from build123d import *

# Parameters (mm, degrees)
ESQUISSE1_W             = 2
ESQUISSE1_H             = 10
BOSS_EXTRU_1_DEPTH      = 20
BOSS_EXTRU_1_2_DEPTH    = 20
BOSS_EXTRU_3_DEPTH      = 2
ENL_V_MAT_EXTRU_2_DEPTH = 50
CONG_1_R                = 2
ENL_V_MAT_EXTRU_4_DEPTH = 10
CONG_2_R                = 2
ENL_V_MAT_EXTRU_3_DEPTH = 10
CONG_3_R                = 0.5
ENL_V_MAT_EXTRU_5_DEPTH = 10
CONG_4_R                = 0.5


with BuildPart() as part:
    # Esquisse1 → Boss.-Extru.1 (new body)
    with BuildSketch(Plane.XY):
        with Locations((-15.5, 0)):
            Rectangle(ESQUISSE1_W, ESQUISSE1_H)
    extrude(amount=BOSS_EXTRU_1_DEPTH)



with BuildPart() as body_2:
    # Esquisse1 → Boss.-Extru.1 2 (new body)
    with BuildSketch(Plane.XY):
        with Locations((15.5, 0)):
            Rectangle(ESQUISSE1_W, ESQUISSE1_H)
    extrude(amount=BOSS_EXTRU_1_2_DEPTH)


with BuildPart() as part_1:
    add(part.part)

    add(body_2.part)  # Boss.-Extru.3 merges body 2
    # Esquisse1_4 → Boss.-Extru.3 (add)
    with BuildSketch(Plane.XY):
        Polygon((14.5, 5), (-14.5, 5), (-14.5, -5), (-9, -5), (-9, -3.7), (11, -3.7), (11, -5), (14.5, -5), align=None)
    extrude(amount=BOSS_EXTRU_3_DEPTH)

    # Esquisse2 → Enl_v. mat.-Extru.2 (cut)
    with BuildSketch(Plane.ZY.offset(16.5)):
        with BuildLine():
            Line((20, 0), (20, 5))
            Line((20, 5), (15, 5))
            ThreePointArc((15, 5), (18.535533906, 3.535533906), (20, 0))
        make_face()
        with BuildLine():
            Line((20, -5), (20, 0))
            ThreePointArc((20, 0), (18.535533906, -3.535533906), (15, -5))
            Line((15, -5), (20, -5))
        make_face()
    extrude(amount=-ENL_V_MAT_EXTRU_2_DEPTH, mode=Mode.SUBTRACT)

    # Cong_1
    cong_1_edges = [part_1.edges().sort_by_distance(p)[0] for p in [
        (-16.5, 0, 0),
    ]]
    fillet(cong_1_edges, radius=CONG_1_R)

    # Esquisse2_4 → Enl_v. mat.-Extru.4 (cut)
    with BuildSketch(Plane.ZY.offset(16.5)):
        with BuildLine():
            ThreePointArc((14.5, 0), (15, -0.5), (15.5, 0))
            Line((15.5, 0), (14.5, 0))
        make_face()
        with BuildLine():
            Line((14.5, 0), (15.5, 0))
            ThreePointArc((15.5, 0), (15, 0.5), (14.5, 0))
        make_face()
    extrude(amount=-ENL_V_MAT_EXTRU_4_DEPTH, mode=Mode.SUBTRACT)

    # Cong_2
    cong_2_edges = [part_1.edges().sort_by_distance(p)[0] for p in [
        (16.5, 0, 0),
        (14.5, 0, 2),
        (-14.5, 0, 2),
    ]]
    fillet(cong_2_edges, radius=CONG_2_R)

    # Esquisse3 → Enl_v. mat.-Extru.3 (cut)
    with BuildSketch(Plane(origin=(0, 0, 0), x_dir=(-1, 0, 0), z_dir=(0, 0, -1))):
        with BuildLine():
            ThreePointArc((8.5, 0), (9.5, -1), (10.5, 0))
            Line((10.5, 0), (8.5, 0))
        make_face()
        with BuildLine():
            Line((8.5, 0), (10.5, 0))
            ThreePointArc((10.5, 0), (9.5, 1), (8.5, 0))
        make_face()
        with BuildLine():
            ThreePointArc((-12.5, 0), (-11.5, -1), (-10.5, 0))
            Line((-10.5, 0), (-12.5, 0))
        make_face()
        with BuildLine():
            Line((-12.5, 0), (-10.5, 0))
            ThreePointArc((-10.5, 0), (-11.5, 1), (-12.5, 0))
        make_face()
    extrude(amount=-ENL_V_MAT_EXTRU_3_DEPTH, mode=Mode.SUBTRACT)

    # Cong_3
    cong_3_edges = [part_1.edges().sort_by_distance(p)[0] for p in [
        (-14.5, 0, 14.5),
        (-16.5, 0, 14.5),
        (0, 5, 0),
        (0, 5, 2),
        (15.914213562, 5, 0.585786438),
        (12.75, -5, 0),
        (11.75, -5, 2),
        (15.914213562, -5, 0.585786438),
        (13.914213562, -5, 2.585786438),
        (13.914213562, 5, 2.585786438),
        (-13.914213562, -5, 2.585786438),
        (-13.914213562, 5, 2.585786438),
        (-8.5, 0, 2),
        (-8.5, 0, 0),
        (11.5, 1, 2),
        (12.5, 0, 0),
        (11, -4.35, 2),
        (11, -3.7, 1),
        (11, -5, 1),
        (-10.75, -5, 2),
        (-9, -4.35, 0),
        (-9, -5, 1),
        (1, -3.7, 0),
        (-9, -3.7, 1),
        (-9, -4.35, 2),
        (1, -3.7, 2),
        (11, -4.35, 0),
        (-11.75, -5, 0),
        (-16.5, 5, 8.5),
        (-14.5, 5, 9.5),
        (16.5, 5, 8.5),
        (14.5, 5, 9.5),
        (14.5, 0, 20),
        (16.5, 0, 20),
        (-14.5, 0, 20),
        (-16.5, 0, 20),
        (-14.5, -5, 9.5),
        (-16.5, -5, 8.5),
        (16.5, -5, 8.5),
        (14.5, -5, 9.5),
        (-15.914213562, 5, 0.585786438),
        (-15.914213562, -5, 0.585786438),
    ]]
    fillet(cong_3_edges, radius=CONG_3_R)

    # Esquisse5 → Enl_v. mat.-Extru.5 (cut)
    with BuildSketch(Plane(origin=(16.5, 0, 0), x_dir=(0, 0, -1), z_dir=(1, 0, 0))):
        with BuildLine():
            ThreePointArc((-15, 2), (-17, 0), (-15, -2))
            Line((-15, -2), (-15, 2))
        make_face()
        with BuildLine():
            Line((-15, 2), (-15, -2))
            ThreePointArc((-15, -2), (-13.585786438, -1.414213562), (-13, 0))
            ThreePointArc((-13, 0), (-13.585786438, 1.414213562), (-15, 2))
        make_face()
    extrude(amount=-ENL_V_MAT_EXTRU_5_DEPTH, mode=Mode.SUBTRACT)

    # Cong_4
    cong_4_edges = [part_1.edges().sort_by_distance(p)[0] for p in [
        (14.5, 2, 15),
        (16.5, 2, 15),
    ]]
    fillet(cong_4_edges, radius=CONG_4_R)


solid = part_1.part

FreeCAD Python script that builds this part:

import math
import FreeCAD as App
import Part
import Sketcher
from FreeCAD import Vector
Q = App.Units.Quantity


def edges_at(feature, points):
    """Names of the edges that pass closest to the given points."""
    edges = feature.Shape.Edges
    near = lambda p: min(range(len(edges)), key=lambda i: edges[i].distToShape(Part.Vertex(*p))[0])
    return sorted({f"Edge{near(p) + 1}" for p in points})


def add_polygon(sketch, points):
    """Adds a closed chain of lines whose ends are joined by coincident constraints."""
    first, n = sketch.GeometryCount, len(points)
    for a, b in zip(points, points[1:] + points[:1]):
        sketch.addGeometry(Part.LineSegment(App.Vector(*a, 0), App.Vector(*b, 0)), False)
    for i in range(n):
        sketch.addConstraint(Sketcher.Constraint("Coincident", first + i, 2, first + (i + 1) % n, 1))

doc = App.newDocument("Part")
body = doc.addObject("PartDesign::Body", "Body")

sketch1 = doc.addObject("Sketcher::SketchObject", "Sketch")
body.addObject(sketch1)
sketch1.AttachmentSupport = (doc.XY_Plane, [""])
sketch1.MapMode = "FlatFace"
add_polygon(sketch1, [(-16.5, 5), (-16.5, -5), (-14.5, -5), (-14.5, 5)])
sketch1.addConstraint(Sketcher.Constraint("Vertical", 0))
sketch1.addConstraint(Sketcher.Constraint("Horizontal", 1))
sketch1.addConstraint(Sketcher.Constraint("Vertical", 2))
sketch1.addConstraint(Sketcher.Constraint("Horizontal", 3))
sketch1.addConstraint(Sketcher.Constraint("DistanceX", 1, 1, 1, 2, Q("2 mm")))
sketch1.addConstraint(Sketcher.Constraint("DistanceY", 0, 2, 0, 1, Q("10 mm")))
sketch1.addConstraint(Sketcher.Constraint("DistanceY", 0, 2, -1, 1, Q("5 mm")))
sketch1.addConstraint(Sketcher.Constraint("DistanceX", 0, 2, -1, 1, Q("16.5 mm")))
pad1 = doc.addObject("PartDesign::Pad", "Pad")
body.addObject(pad1)
pad1.Profile = sketch1
pad1.Length = 20
body2 = doc.addObject("PartDesign::Body", "Body001")

sketch2 = doc.addObject("Sketcher::SketchObject", "Sketch001")
body2.addObject(sketch2)
sketch2.AttachmentSupport = (doc.getObject("XY_Plane001"), [""])
sketch2.MapMode = "FlatFace"
add_polygon(sketch2, [(14.5, 5), (14.5, -5), (16.5, -5), (16.5, 5)])
sketch2.addConstraint(Sketcher.Constraint("Vertical", 0))
sketch2.addConstraint(Sketcher.Constraint("Horizontal", 1))
sketch2.addConstraint(Sketcher.Constraint("Vertical", 2))
sketch2.addConstraint(Sketcher.Constraint("Horizontal", 3))
sketch2.addConstraint(Sketcher.Constraint("DistanceX", 1, 1, 1, 2, Q("2 mm")))
sketch2.addConstraint(Sketcher.Constraint("DistanceY", 0, 2, 0, 1, Q("10 mm")))
sketch2.addConstraint(Sketcher.Constraint("DistanceY", 0, 2, -1, 1, Q("5 mm")))
sketch2.addConstraint(Sketcher.Constraint("DistanceX", -1, 1, 0, 2, Q("14.5 mm")))
pad2 = doc.addObject("PartDesign::Pad", "Pad001")
body2.addObject(pad2)
pad2.Profile = sketch2
pad2.Length = 20
body.AllowCompound = True
doc.recompute()

boolean = doc.addObject("PartDesign::Boolean", "Boolean")
body.addObject(boolean)
boolean.Type = "Fuse"
boolean.addObjects([body2])

sketch3 = doc.addObject("Sketcher::SketchObject", "Sketch002")
body.addObject(sketch3)
sketch3.AttachmentSupport = (doc.XY_Plane, [""])
sketch3.MapMode = "FlatFace"
add_polygon(sketch3, [(14.5, 5), (-14.5, 5), (-14.5, -5), (-9, -5), (-9, -3.7), (11, -3.7), (11, -5), (14.5, -5)])
sketch3.addConstraint(Sketcher.Constraint("Horizontal", 0))
sketch3.addConstraint(Sketcher.Constraint("Vertical", 1))
sketch3.addConstraint(Sketcher.Constraint("Horizontal", 2))
sketch3.addConstraint(Sketcher.Constraint("Vertical", 3))
sketch3.addConstraint(Sketcher.Constraint("Horizontal", 4))
sketch3.addConstraint(Sketcher.Constraint("Vertical", 5))
sketch3.addConstraint(Sketcher.Constraint("Horizontal", 6))
sketch3.addConstraint(Sketcher.Constraint("Vertical", 7))
sketch3.addConstraint(Sketcher.Constraint("Symmetric", 0, 2, 6, 2, -1, 1))
sketch3.addConstraint(Sketcher.Constraint("Horizontal", 2, 2, 5, 2))
sketch3.addConstraint(Sketcher.Constraint("DistanceX", 0, 2, 0, 1, Q("29 mm")))
sketch3.addConstraint(Sketcher.Constraint("DistanceX", 4, 1, 4, 2, Q("20 mm")))
sketch3.addConstraint(Sketcher.Constraint("DistanceY", 1, 2, 1, 1, Q("10 mm")))
sketch3.addConstraint(Sketcher.Constraint("DistanceX", 2, 1, 2, 2, Q("5.5 mm")))
sketch3.addConstraint(Sketcher.Constraint("DistanceY", 3, 1, 3, 2, Q("1.3 mm")))
pad3 = doc.addObject("PartDesign::Pad", "Pad002")
body.addObject(pad3)
pad3.Profile = sketch3
pad3.Length = 2

sketch4 = doc.addObject("Sketcher::SketchObject", "Sketch003")
body.addObject(sketch4)
sketch4.AttachmentSupport = (doc.YZ_Plane, [""])
sketch4.MapMode = "FlatFace"
sketch4.AttachmentOffset = App.Placement(Vector(0, 0, -16.5), App.Rotation())
sketch4.addGeometry(Part.LineSegment(Vector(0, 20, 0), Vector(5, 20, 0)), False)
sketch4.addGeometry(Part.LineSegment(Vector(5, 20, 0), Vector(5, 15, 0)), False)
sketch4.addGeometry(Part.ArcOfCircle(Part.Circle(Vector(0, 15, 0), Vector(0, 0, 1), 5), math.radians(0), math.radians(90)), False)
sketch4.addGeometry(Part.LineSegment(Vector(-5, 20, 0), Vector(0, 20, 0)), False)
sketch4.addGeometry(Part.ArcOfCircle(Part.Circle(Vector(0, 15, 0), Vector(0, 0, 1), 5), math.radians(90), math.radians(180)), False)
sketch4.addGeometry(Part.LineSegment(Vector(-5, 15, 0), Vector(-5, 20, 0)), False)
sketch4.addConstraint(Sketcher.Constraint("Coincident", 0, 2, 1, 1))
sketch4.addConstraint(Sketcher.Constraint("Tangent", 1, 2, 2, 1))
sketch4.addConstraint(Sketcher.Constraint("Tangent", 2, 2, 0, 1))
sketch4.addConstraint(Sketcher.Constraint("Tangent", 3, 2, 4, 1))
sketch4.addConstraint(Sketcher.Constraint("Tangent", 4, 2, 5, 1))
sketch4.addConstraint(Sketcher.Constraint("Coincident", 5, 2, 3, 1))
sketch4.addConstraint(Sketcher.Constraint("Horizontal", 0))
sketch4.addConstraint(Sketcher.Constraint("Vertical", 1))
sketch4.addConstraint(Sketcher.Constraint("Horizontal", 3))
sketch4.addConstraint(Sketcher.Constraint("Vertical", 5))
sketch4.addConstraint(Sketcher.Constraint("Coincident", 4, 3, 2, 3))
sketch4.addConstraint(Sketcher.Constraint("Equal", 2, 4))
sketch4.addConstraint(Sketcher.Constraint("PointOnObject", 2, 3, -2))
sketch4.addConstraint(Sketcher.Constraint("Radius", 2, Q("5 mm")))
sketch4.addConstraint(Sketcher.Constraint("DistanceY", -1, 1, 2, 3, Q("15 mm")))
pocket1 = doc.addObject("PartDesign::Pocket", "Pocket")
body.addObject(pocket1)
pocket1.Profile = sketch4
pocket1.Length = 50
pocket1.Reversed = True
doc.recompute()

fillet = doc.addObject("PartDesign::Fillet", "Fillet")
body.addObject(fillet)
fillet.Base = (pocket1, edges_at(pocket1, [(-16.5, 0, 0)]))
fillet.Radius = 2

sketch5 = doc.addObject("Sketcher::SketchObject", "Sketch004")
body.addObject(sketch5)
sketch5.AttachmentSupport = (doc.YZ_Plane, [""])
sketch5.MapMode = "FlatFace"
sketch5.AttachmentOffset = App.Placement(Vector(0, 0, -16.5), App.Rotation())
sketch5.addGeometry(Part.Circle(Vector(0, 15, 0), Vector(0, 0, 1), 0.5), False)
sketch5.addConstraint(Sketcher.Constraint("PointOnObject", 0, 3, -2))
sketch5.addConstraint(Sketcher.Constraint("Diameter", 0, Q("1 mm")))
sketch5.addConstraint(Sketcher.Constraint("DistanceY", -1, 1, 0, 3, Q("15 mm")))
pocket2 = doc.addObject("PartDesign::Pocket", "Pocket001")
body.addObject(pocket2)
pocket2.Profile = sketch5
pocket2.Length = 10
pocket2.Reversed = True
doc.recompute()

fillet2 = doc.addObject("PartDesign::Fillet", "Fillet001")
body.addObject(fillet2)
fillet2.Base = (pocket2, edges_at(pocket2, [(16.5, 0, 0), (14.5, 0, 2), (-14.5, 0, 2)]))
fillet2.Radius = 2

sketch6 = doc.addObject("Sketcher::SketchObject", "Sketch005")
body.addObject(sketch6)
sketch6.AttachmentSupport = (doc.XY_Plane, [""])
sketch6.MapMode = "FlatFace"
sketch6.addGeometry(Part.Circle(Vector(-9.5, 0, 0), Vector(0, 0, 1), 1), False)
sketch6.addGeometry(Part.Circle(Vector(11.5, 0, 0), Vector(0, 0, 1), 1), False)
sketch6.addConstraint(Sketcher.Constraint("Equal", 0, 1))
sketch6.addConstraint(Sketcher.Constraint("PointOnObject", 0, 3, -1))
sketch6.addConstraint(Sketcher.Constraint("PointOnObject", 1, 3, -1))
sketch6.addConstraint(Sketcher.Constraint("Diameter", 0, Q("2 mm")))
sketch6.addConstraint(Sketcher.Constraint("DistanceX", 0, 3, 1, 3, Q("21 mm")))
sketch6.addConstraint(Sketcher.Constraint("DistanceX", 0, 3, -1, 1, Q("9.5 mm")))
pocket3 = doc.addObject("PartDesign::Pocket", "Pocket002")
body.addObject(pocket3)
pocket3.Profile = sketch6
pocket3.Length = 10
pocket3.Reversed = True
doc.recompute()

fillet3 = doc.addObject("PartDesign::Fillet", "Fillet002")
body.addObject(fillet3)
fillet3.Base = (pocket3, edges_at(pocket3, [
    (-14.5, 0, 14.5),
    (-16.5, 0, 14.5),
    (0, 5, 0),
    (0, 5, 2),
    (15.914, 5, 0.586),
    (12.75, -5, 0),
    (11.75, -5, 2),
    (15.914, -5, 0.586),
    (13.914, -5, 2.586),
    (13.914, 5, 2.586),
    (-13.914, -5, 2.586),
    (-13.914, 5, 2.586),
    (-8.5, 0, 2),
    (-8.5, 0, 0),
    (11.5, 1, 2),
    (12.5, 0, 0),
    (11, -4.35, 2),
    (11, -3.7, 1),
    (11, -5, 1),
    (-10.75, -5, 2),
    (-9, -4.35, 0),
    (-9, -5, 1),
    (1, -3.7, 0),
    (-9, -3.7, 1),
    (-9, -4.35, 2),
    (1, -3.7, 2),
    (11, -4.35, 0),
    (-11.75, -5, 0),
    (-16.5, 5, 8.5),
    (-14.5, 5, 9.5),
    (16.5, 5, 8.5),
    (14.5, 5, 9.5),
    (14.5, 3.536, 18.536),
    (16.5, 3.536, 18.536),
    (-15.5, 0, 20),
    (-16.5, 3.536, 18.536),
    (-14.5, -5, 9.5),
    (-16.5, -5, 8.5),
    (16.5, -5, 8.5),
    (14.5, -5, 9.5),
    (-15.914, 5, 0.586),
    (-15.914, -5, 0.586),
]))
fillet3.Radius = 0.5

sketch7 = doc.addObject("Sketcher::SketchObject", "Sketch006")
body.addObject(sketch7)
sketch7.AttachmentSupport = (doc.YZ_Plane, [""])
sketch7.MapMode = "FlatFace"
sketch7.AttachmentOffset = App.Placement(Vector(0, 0, 16.5), App.Rotation())
sketch7.addGeometry(Part.ArcOfCircle(Part.Circle(Vector(0, 15, 0), Vector(0, 0, 1), 2), math.radians(0), math.radians(180)), False)
sketch7.addGeometry(Part.ArcOfCircle(Part.Circle(Vector(0, 15, 0), Vector(0, 0, 1), 2), math.radians(-180), math.radians(-90)), False)
sketch7.addGeometry(Part.ArcOfCircle(Part.Circle(Vector(0, 15, 0), Vector(0, 0, 1), 2), math.radians(-90), math.radians(0)), False)
sketch7.addConstraint(Sketcher.Constraint("Tangent", 0, 2, 1, 1))
sketch7.addConstraint(Sketcher.Constraint("Tangent", 1, 2, 2, 1))
sketch7.addConstraint(Sketcher.Constraint("Tangent", 2, 2, 0, 1))
sketch7.addConstraint(Sketcher.Constraint("Symmetric", 0, 2, 2, 2, -2))
sketch7.addConstraint(Sketcher.Constraint("PointOnObject", 1, 2, -2))
sketch7.addConstraint(Sketcher.Constraint("Horizontal", 2, 3, 0, 2))
sketch7.addConstraint(Sketcher.Constraint("Radius", 0, Q("2 mm")))
sketch7.addConstraint(Sketcher.Constraint("DistanceY", -1, 1, 0, 3, Q("15 mm")))
pocket4 = doc.addObject("PartDesign::Pocket", "Pocket003")
body.addObject(pocket4)
pocket4.Profile = sketch7
pocket4.Length = 10
doc.recompute()

fillet4 = doc.addObject("PartDesign::Fillet", "Fillet003")
body.addObject(fillet4)
fillet4.Base = (pocket4, edges_at(pocket4, [(14.5, 1.414, 13.586), (16.5, 1.414, 13.586)]))
fillet4.Radius = 0.5

doc.recompute()
